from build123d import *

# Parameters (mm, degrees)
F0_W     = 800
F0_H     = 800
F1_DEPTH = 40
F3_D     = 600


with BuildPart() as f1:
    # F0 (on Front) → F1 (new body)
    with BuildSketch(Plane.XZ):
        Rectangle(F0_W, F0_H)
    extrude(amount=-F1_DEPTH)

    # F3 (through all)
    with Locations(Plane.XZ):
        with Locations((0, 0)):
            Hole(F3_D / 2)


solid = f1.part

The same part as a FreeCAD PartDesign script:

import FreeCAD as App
import Part
import Sketcher
from FreeCAD import Vector


def add_polygon(sketch, points):
    """Adds a closed chain of lines whose ends are joined by coincident constraints."""
    first, n = sketch.GeometryCount, len(points)
    for a, b in zip(points, points[1:] + points[:1]):
        sketch.addGeometry(Part.LineSegment(App.Vector(*a, 0), App.Vector(*b, 0)), False)
    for i in range(n):
        sketch.addConstraint(Sketcher.Constraint("Coincident", first + i, 2, first + (i + 1) % n, 1))

doc = App.newDocument("Part")
body = doc.addObject("PartDesign::Body", "Body")

# Sketch on XZ plane
sketch1 = body.newObject("Sketcher::SketchObject", "Sketch")
sketch1.AttachmentSupport = (doc.getObject("XZ_Plane"), [""])
sketch1.MapMode = "FlatFace"
add_polygon(sketch1, [(-400, 400), (-400, -400), (400, -400), (400, 400)])  # lines 0-3
sketch1.addConstraint(Sketcher.Constraint("Vertical", 0))
sketch1.addConstraint(Sketcher.Constraint("Horizontal", 1))
sketch1.addConstraint(Sketcher.Constraint("Vertical", 2))
sketch1.addConstraint(Sketcher.Constraint("Horizontal", 3))
sketch1.addConstraint(Sketcher.Constraint("Symmetric", 0, 2, 2, 2, -1, 1))
sketch1.addConstraint(Sketcher.Constraint("Equal", 3, 0))
sketch1.addConstraint(Sketcher.Constraint("DistanceX", 1, 1, 1, 2, 800.0))
pad1 = body.newObject("PartDesign::Pad", "Pad")
pad1.Profile = sketch1
pad1.Length = 40
pad1.Reversed = True

# Sketch on XZ plane
sketch2 = body.newObject("Sketcher::SketchObject", "Sketch001")
sketch2.AttachmentSupport = (doc.getObject("XZ_Plane"), [""])
sketch2.MapMode = "FlatFace"
sketch2.addGeometry(Part.Circle(Vector(0, 0, 0), Vector(0, 0, 1), 300), False)
sketch2.addConstraint(Sketcher.Constraint("Coincident", 0, 3, -1, 1))
sketch2.addConstraint(Sketcher.Constraint("Diameter", 0, 600.0))
doc.recompute()
hole = body.newObject("PartDesign::Hole", "Hole")
hole.Profile = sketch2
hole.ThreadType = "None"
hole.Diameter = 600
hole.DepthType = "ThroughAll"

doc.recompute()
